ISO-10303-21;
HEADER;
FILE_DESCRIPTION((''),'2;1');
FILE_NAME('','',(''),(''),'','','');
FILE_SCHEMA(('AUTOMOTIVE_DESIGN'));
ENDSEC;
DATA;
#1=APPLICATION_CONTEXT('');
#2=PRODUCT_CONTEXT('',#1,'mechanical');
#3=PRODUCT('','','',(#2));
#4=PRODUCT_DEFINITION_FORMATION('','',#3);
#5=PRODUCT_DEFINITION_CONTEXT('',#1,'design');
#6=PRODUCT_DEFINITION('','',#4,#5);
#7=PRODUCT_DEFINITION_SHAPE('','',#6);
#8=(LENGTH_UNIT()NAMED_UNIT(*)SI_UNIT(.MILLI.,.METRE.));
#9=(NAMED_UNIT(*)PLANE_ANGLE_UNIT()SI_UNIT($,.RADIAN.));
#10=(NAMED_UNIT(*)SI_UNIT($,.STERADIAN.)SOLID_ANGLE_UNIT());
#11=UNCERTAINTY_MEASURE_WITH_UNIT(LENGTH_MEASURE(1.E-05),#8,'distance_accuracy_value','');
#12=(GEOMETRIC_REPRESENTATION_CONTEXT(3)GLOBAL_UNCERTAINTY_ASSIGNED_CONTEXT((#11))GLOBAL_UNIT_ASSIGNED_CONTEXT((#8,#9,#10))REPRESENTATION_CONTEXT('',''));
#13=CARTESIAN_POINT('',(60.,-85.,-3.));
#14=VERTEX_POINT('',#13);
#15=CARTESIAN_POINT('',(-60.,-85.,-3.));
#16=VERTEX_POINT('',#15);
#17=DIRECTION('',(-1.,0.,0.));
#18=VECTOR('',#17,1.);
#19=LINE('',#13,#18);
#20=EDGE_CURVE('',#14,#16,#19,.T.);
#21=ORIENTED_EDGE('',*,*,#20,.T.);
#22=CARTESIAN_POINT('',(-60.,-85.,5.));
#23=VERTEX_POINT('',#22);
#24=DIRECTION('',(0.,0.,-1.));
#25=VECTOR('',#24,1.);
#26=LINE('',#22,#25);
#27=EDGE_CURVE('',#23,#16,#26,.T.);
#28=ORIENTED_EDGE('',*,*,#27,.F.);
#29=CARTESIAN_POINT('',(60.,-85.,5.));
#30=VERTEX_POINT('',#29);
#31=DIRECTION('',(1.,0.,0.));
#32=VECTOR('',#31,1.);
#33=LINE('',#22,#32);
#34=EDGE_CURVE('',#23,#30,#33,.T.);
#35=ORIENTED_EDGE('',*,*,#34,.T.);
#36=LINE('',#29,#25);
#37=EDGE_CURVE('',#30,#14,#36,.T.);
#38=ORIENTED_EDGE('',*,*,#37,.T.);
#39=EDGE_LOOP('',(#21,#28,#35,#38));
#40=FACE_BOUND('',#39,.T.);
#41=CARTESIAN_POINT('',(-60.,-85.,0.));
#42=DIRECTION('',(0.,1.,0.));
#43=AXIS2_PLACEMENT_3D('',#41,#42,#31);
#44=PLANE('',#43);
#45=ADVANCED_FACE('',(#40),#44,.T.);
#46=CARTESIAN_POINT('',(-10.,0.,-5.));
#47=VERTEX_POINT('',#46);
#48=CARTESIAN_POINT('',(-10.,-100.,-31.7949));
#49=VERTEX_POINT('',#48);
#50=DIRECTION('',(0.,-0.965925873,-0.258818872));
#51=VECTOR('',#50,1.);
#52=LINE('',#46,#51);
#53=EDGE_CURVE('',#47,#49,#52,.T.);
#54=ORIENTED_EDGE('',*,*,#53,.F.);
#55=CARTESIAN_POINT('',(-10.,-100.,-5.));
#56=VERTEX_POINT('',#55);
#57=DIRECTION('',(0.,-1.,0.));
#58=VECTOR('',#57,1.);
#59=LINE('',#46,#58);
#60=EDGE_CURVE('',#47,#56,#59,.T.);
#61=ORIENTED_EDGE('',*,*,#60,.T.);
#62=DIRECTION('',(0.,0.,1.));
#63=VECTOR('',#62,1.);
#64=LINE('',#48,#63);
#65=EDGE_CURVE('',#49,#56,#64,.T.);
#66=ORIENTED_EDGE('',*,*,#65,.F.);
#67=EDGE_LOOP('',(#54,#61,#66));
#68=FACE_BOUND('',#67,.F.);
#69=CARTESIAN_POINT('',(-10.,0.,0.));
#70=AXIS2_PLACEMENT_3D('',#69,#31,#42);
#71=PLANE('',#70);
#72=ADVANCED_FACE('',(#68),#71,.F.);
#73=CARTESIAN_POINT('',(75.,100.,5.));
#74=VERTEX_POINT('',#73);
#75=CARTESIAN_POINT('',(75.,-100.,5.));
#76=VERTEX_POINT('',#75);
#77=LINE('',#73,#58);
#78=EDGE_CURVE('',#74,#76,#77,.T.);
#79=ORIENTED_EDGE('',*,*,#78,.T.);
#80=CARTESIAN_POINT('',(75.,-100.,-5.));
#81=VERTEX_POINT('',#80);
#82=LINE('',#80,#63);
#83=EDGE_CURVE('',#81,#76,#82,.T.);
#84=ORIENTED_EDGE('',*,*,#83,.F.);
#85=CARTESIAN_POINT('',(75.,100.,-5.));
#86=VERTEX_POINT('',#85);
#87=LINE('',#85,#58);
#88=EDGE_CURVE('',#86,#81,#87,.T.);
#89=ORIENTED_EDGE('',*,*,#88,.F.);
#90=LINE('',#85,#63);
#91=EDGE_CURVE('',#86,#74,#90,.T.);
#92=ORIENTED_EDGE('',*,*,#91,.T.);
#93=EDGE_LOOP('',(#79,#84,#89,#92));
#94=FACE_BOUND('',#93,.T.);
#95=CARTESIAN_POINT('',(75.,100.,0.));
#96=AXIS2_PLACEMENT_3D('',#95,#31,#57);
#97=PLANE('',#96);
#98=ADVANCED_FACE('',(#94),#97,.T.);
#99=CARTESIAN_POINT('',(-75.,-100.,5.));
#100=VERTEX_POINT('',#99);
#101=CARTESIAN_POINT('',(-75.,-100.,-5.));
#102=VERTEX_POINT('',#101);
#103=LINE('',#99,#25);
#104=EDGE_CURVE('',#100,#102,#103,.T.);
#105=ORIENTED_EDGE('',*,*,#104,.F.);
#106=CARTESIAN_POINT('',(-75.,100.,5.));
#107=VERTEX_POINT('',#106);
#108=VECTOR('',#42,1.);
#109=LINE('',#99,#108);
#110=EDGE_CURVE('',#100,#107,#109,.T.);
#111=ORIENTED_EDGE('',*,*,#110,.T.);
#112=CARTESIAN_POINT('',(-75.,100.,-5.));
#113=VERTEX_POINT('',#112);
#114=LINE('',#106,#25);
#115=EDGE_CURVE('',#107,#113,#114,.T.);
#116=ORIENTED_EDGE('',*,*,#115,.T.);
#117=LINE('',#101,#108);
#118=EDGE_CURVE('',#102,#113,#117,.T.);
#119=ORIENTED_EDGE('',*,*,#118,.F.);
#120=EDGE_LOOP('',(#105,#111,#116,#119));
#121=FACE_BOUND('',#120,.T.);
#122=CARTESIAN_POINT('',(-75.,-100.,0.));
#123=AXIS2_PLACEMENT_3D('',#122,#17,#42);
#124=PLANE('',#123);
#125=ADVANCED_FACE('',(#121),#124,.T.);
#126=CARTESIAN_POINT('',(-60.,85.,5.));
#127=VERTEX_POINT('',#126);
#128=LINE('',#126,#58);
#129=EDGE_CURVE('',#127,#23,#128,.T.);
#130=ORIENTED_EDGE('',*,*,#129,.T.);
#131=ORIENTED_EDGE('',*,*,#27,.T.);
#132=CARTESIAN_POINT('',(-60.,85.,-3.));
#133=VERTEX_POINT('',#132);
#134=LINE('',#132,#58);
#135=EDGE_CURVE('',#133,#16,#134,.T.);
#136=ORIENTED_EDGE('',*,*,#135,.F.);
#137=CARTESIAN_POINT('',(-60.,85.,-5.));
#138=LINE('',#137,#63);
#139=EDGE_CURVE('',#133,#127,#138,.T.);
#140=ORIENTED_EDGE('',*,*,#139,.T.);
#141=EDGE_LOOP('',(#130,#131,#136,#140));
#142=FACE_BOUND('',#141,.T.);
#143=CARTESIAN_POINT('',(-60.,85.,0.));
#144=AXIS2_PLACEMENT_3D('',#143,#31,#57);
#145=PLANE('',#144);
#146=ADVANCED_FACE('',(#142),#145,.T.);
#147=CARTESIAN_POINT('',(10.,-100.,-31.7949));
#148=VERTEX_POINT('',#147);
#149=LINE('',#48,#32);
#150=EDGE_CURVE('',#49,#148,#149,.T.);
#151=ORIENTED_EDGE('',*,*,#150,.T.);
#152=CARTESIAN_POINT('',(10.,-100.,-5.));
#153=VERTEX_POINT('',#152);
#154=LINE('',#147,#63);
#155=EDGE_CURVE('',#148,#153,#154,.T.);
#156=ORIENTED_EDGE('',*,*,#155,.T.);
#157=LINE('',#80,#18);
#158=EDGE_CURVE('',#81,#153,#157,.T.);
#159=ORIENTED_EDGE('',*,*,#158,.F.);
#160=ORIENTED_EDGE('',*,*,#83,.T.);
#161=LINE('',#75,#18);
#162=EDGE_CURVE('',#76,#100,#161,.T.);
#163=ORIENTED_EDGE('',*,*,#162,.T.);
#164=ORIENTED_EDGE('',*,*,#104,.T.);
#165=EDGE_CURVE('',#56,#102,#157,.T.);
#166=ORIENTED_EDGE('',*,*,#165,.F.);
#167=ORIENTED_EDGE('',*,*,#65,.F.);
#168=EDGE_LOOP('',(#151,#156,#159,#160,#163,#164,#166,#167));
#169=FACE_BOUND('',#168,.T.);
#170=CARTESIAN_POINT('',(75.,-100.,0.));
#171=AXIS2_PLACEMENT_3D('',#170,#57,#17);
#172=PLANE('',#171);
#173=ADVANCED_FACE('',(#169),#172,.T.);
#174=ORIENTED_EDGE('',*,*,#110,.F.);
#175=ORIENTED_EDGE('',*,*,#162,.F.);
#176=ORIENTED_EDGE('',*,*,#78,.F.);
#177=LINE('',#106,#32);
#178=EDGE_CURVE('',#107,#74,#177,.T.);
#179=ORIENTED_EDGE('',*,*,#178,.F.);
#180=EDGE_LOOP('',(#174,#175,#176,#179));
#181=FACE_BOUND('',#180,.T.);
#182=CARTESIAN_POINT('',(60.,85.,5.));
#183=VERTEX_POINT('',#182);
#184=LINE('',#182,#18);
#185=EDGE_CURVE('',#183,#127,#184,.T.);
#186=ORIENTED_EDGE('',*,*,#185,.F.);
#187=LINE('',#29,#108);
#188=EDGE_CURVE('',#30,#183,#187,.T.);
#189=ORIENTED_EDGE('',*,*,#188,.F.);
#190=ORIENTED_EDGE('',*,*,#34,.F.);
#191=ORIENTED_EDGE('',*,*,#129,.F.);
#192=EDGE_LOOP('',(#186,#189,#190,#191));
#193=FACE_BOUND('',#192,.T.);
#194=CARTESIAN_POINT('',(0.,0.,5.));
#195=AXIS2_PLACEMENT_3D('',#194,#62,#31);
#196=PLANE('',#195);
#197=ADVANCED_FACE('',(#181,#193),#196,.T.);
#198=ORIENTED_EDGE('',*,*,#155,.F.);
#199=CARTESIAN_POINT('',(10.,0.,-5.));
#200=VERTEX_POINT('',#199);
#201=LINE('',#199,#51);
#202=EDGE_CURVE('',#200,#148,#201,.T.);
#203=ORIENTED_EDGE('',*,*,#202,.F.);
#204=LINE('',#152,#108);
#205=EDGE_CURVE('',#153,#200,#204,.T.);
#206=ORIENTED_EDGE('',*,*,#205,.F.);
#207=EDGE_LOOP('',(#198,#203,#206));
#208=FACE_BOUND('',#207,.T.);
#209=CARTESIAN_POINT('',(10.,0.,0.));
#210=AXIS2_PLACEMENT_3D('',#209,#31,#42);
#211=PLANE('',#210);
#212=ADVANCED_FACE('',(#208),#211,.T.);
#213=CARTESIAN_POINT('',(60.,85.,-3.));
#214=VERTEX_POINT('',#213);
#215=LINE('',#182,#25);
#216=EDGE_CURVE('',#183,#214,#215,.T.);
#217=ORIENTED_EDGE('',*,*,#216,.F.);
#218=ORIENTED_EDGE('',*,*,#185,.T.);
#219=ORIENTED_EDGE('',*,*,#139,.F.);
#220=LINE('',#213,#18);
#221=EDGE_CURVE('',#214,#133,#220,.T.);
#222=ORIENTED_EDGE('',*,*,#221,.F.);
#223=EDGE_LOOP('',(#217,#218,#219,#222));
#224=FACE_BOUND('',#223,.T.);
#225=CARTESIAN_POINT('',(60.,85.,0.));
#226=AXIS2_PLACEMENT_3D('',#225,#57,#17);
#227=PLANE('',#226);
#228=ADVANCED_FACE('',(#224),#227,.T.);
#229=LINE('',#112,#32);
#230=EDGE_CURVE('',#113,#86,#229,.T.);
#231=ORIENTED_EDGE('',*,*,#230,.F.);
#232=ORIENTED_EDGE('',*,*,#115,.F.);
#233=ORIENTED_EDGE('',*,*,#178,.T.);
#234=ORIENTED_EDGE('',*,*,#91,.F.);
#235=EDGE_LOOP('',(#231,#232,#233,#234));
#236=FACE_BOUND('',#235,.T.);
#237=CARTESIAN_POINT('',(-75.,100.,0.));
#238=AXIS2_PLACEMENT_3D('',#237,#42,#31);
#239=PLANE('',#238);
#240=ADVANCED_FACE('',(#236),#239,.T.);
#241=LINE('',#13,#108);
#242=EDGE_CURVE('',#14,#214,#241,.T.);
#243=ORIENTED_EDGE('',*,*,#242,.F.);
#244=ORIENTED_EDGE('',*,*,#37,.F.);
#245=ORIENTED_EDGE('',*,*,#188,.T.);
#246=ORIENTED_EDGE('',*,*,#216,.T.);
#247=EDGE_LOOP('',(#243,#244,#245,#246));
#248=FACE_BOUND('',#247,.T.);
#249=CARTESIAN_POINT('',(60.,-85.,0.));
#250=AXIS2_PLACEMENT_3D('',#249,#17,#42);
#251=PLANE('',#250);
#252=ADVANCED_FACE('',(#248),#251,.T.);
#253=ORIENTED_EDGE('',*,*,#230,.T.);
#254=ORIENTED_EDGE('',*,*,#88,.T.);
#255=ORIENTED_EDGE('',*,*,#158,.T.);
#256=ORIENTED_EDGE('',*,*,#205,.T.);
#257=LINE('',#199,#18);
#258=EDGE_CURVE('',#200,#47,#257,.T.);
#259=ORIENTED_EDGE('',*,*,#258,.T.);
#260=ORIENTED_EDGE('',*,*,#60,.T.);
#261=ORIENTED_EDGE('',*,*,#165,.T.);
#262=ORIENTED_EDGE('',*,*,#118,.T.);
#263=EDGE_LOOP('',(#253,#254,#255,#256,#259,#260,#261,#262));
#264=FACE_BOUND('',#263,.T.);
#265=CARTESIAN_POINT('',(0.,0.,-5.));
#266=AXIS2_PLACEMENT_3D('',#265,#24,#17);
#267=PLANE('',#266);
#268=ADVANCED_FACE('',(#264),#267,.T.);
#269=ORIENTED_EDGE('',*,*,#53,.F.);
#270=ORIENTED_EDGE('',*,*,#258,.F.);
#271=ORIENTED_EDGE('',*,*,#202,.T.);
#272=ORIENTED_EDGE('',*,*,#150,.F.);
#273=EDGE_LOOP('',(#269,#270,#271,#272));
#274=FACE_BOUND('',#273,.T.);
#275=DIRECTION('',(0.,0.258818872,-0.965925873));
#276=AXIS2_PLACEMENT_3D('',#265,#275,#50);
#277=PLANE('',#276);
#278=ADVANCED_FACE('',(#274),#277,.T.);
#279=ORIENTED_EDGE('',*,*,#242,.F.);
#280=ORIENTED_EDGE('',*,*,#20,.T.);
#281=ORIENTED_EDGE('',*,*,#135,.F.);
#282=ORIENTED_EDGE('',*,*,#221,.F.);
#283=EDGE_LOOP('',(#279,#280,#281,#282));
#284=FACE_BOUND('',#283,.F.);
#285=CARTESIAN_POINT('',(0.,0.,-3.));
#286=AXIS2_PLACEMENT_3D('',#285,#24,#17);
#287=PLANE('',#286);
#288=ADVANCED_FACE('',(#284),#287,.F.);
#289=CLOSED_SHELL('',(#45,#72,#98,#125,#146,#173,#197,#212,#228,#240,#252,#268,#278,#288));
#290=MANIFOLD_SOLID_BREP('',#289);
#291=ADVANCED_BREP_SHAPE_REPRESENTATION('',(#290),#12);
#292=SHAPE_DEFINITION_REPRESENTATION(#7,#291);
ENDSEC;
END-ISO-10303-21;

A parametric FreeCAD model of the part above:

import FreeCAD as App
import Part
import Sketcher
Q = App.Units.Quantity

doc = App.newDocument("Part")
params = doc.addObject("Spreadsheet::Sheet", "Params")
for row, (alias, value) in enumerate([
    ("sketch1_width", "150 mm"),
    ("sketch1_height", "200 mm"),
    ("pad1_length", "10 mm"),
    ("sketch2_width", "100 mm"),
    ("pad2_length", "20 mm"),
    ("sketch3_width", "120 mm"),
    ("sketch3_height", "170 mm"),
    ("pad3_length", "2 mm"),
], start=1):
    params.set(f"A{row}", alias)
    params.set(f"B{row}", "=" + value)
    params.setAlias(f"B{row}", alias)

body = doc.addObject("PartDesign::Body", "Body")

sketch1 = body.newObject("Sketcher::SketchObject", "Sketch")
sketch1.AttachmentSupport = (doc.getObject("XY_Plane"), [""])
sketch1.MapMode = "FlatFace"
sketch1.addGeometry(Part.LineSegment(App.Vector(-75, -100, 0), App.Vector(75, -100, 0)), False)
sketch1.addGeometry(Part.LineSegment(App.Vector(75, -100, 0), App.Vector(75, 100, 0)), False)
sketch1.addGeometry(Part.LineSegment(App.Vector(75, 100, 0), App.Vector(-75, 100, 0)), False)
sketch1.addGeometry(Part.LineSegment(App.Vector(-75, 100, 0), App.Vector(-75, -100, 0)), False)
sketch1.addGeometry(Part.LineSegment(App.Vector(-60, -85, 0), App.Vector(-60, 85, 0)), False)
sketch1.addGeometry(Part.LineSegment(App.Vector(-60, 85, 0), App.Vector(60, 85, 0)), False)
sketch1.addGeometry(Part.LineSegment(App.Vector(60, 85, 0), App.Vector(60, -85, 0)), False)
sketch1.addGeometry(Part.LineSegment(App.Vector(60, -85, 0), App.Vector(-60, -85, 0)), False)
sketch1.addConstraint(Sketcher.Constraint("Coincident", 0, 2, 1, 1))
sketch1.addConstraint(Sketcher.Constraint("Coincident", 1, 2, 2, 1))
sketch1.addConstraint(Sketcher.Constraint("Coincident", 2, 2, 3, 1))
sketch1.addConstraint(Sketcher.Constraint("Coincident", 3, 2, 0, 1))
sketch1.addConstraint(Sketcher.Constraint("Coincident", 4, 2, 5, 1))
sketch1.addConstraint(Sketcher.Constraint("Coincident", 5, 2, 6, 1))
sketch1.addConstraint(Sketcher.Constraint("Coincident", 6, 2, 7, 1))
sketch1.addConstraint(Sketcher.Constraint("Coincident", 7, 2, 4, 1))
sketch1.addConstraint(Sketcher.Constraint("Horizontal", 0))
sketch1.addConstraint(Sketcher.Constraint("Vertical", 1))
sketch1.addConstraint(Sketcher.Constraint("Horizontal", 2))
sketch1.addConstraint(Sketcher.Constraint("Vertical", 3))
sketch1.addConstraint(Sketcher.Constraint("Vertical", 4))
sketch1.addConstraint(Sketcher.Constraint("Horizontal", 5))
sketch1.addConstraint(Sketcher.Constraint("Vertical", 6))
sketch1.addConstraint(Sketcher.Constraint("Horizontal", 7))
sketch1.addConstraint(Sketcher.Constraint("Symmetric", 0, 2, 2, 2, -1, 1))
sketch1.addConstraint(Sketcher.Constraint("Symmetric", 4, 2, 6, 2, -1, 1))
sketch1.addConstraint(Sketcher.Constraint("DistanceX", 0, 1, 0, 2, 150.0))
sketch1.addConstraint(Sketcher.Constraint("DistanceY", 1, 1, 1, 2, 200.0))
sketch1.addConstraint(Sketcher.Constraint("DistanceX", 2, 2, 4, 2, 15.0))
sketch1.addConstraint(Sketcher.Constraint("DistanceY", 4, 2, 2, 2, 15.0))
sketch1.setExpression("Constraints[18]", "Params.sketch1_width")
sketch1.setExpression("Constraints[19]", "Params.sketch1_height")
pad1 = body.newObject("PartDesign::Pad", "Pad")
pad1.Profile = sketch1
pad1.setExpression("Length", "Params.pad1_length")
pad1.Midplane = True

sketch2 = body.newObject("Sketcher::SketchObject", "Sketch001")
sketch2.AttachmentSupport = (doc.getObject("YZ_Plane"), [""])
sketch2.MapMode = "FlatFace"
sketch2.addGeometry(Part.LineSegment(App.Vector(0, -5, 0), App.Vector(-100, -5, 0)), False)
sketch2.addGeometry(Part.LineSegment(App.Vector(-100, -5, 0), App.Vector(-100, -32, 0)), False)
sketch2.addGeometry(Part.LineSegment(App.Vector(-100, -32, 0), App.Vector(0, -5, 0)), False)
sketch2.addConstraint(Sketcher.Constraint("Coincident", 0, 2, 1, 1))
sketch2.addConstraint(Sketcher.Constraint("Coincident", 1, 2, 2, 1))
sketch2.addConstraint(Sketcher.Constraint("Coincident", 2, 2, 0, 1))
sketch2.addConstraint(Sketcher.Constraint("Horizontal", 0))
sketch2.addConstraint(Sketcher.Constraint("Vertical", 1))
sketch2.addConstraint(Sketcher.Constraint("PointOnObject", 2, 2, -2))
sketch2.addConstraint(Sketcher.Constraint("DistanceX", 0, 2, 0, 1, 100.0))
sketch2.addConstraint(Sketcher.Constraint("Angle", 2, Q("15 deg")))
sketch2.addConstraint(Sketcher.Constraint("DistanceY", 0, 2, -1, 1, 5.0))
sketch2.setExpression("Constraints[6]", "Params.sketch2_width")
pad2 = body.newObject("PartDesign::Pad", "Pad001")
pad2.Profile = sketch2
pad2.setExpression("Length", "Params.pad2_length")
pad2.Midplane = True

sketch3 = body.newObject("Sketcher::SketchObject", "Sketch002")
sketch3.AttachmentSupport = (doc.getObject("XY_Plane"), [""])
sketch3.MapMode = "FlatFace"
sketch3.AttachmentOffset = App.Placement(App.Vector(0, 0, -5), App.Rotation())
sketch3.addGeometry(Part.LineSegment(App.Vector(-60, 85, 0), App.Vector(60, 85, 0)), False)
sketch3.addGeometry(Part.LineSegment(App.Vector(60, 85, 0), App.Vector(60, -85, 0)), False)
sketch3.addGeometry(Part.LineSegment(App.Vector(60, -85, 0), App.Vector(-60, -85, 0)), False)
sketch3.addGeometry(Part.LineSegment(App.Vector(-60, -85, 0), App.Vector(-60, 85, 0)), False)
sketch3.addConstraint(Sketcher.Constraint("Coincident", 0, 2, 1, 1))
sketch3.addConstraint(Sketcher.Constraint("Coincident", 1, 2, 2, 1))
sketch3.addConstraint(Sketcher.Constraint("Coincident", 2, 2, 3, 1))
sketch3.addConstraint(Sketcher.Constraint("Coincident", 3, 2, 0, 1))
sketch3.addConstraint(Sketcher.Constraint("Horizontal", 0))
sketch3.addConstraint(Sketcher.Constraint("Vertical", 1))
sketch3.addConstraint(Sketcher.Constraint("Horizontal", 2))
sketch3.addConstraint(Sketcher.Constraint("Vertical", 3))
sketch3.addConstraint(Sketcher.Constraint("Symmetric", 0, 2, 2, 2, -1, 1))
sketch3.addConstraint(Sketcher.Constraint("DistanceX", 0, 1, 0, 2, 120.0))
sketch3.addConstraint(Sketcher.Constraint("DistanceY", 1, 2, 1, 1, 170.0))
sketch3.setExpression("Constraints[9]", "Params.sketch3_width")
sketch3.setExpression("Constraints[10]", "Params.sketch3_height")
pad3 = body.newObject("PartDesign::Pad", "Pad002")
pad3.Profile = sketch3
pad3.setExpression("Length", "Params.pad3_length")

doc.recompute()
